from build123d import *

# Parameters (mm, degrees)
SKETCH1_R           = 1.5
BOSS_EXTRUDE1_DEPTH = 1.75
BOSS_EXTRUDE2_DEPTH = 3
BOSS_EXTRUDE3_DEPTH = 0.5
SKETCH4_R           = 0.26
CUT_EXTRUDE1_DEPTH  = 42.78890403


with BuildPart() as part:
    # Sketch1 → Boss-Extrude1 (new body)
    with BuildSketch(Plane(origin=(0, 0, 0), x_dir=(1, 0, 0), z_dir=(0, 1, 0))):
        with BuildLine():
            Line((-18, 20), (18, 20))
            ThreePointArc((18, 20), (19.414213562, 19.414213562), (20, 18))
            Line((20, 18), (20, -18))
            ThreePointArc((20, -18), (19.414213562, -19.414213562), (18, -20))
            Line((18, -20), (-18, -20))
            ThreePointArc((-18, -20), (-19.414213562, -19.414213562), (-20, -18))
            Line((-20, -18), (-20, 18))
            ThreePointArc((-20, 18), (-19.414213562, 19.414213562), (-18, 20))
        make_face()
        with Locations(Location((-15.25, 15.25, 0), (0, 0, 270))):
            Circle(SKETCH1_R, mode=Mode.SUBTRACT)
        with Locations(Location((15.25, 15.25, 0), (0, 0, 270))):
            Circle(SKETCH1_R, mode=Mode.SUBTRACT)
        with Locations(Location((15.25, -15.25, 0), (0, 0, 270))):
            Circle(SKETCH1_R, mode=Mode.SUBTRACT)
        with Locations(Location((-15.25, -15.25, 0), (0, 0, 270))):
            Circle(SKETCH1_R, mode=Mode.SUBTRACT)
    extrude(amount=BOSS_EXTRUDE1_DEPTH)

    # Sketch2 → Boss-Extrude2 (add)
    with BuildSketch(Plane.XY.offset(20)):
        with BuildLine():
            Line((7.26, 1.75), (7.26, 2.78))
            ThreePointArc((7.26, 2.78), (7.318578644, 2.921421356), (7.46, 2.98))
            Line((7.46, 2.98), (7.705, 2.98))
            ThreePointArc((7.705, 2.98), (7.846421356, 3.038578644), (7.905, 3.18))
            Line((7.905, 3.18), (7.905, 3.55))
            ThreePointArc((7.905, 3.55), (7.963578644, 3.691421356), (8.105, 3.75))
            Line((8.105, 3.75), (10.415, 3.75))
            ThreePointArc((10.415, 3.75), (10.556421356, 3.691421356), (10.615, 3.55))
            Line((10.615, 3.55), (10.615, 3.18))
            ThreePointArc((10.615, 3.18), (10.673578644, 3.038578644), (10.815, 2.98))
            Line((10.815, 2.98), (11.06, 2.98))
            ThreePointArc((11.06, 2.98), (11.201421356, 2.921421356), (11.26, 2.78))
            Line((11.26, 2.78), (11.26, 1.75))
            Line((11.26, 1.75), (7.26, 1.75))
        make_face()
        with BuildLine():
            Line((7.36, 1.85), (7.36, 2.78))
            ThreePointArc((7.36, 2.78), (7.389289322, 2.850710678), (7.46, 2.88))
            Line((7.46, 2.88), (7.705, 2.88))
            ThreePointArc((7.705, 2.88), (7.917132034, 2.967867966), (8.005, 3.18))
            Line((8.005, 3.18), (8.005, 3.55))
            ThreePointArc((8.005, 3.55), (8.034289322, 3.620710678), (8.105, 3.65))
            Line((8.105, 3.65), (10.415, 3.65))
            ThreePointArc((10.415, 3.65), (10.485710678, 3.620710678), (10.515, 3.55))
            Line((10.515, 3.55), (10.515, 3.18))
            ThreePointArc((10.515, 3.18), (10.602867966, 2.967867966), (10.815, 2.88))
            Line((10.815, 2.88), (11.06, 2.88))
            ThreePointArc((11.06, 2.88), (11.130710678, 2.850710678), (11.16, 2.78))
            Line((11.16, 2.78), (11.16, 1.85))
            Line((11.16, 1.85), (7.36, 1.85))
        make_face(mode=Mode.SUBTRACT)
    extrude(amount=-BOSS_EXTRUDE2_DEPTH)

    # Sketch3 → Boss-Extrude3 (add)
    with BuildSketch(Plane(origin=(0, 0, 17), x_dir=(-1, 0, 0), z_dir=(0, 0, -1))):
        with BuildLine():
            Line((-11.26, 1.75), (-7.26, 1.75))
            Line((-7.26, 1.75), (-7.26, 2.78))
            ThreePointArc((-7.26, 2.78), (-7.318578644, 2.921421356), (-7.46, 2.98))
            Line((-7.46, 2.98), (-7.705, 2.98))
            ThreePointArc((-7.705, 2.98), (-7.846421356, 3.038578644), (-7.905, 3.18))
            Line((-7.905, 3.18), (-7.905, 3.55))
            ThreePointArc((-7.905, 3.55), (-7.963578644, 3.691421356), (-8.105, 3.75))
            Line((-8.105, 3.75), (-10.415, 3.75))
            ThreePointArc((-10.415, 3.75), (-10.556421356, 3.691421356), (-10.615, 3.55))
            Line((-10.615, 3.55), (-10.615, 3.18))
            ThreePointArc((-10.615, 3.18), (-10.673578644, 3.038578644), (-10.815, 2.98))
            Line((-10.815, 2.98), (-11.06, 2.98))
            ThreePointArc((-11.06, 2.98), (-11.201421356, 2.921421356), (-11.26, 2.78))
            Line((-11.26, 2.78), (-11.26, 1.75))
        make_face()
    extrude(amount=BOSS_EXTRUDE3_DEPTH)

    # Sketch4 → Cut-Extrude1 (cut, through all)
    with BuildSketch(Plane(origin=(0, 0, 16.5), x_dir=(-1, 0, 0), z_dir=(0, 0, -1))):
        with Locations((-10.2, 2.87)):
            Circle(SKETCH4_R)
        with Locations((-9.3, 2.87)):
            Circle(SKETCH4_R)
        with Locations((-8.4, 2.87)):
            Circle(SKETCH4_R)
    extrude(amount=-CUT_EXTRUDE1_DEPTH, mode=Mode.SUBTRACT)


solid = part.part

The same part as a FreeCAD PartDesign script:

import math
import FreeCAD as App
import Part
import Sketcher
Q = App.Units.Quantity

doc = App.newDocument("Part")
body = doc.addObject("PartDesign::Body", "Body")

sketch1 = body.newObject("Sketcher::SketchObject", "Sketch")
sketch1.AttachmentSupport = (doc.getObject("XZ_Plane"), [""])
sketch1.MapMode = "FlatFace"
sketch1.addGeometry([
    Part.LineSegment(App.Vector(18, -20, 0), App.Vector(-18, -20, 0)),
    Part.ArcOfCircle(Part.Circle(App.Vector(-18, -18, 0), App.Vector(0, 0, 1), 2), math.radians(-180), math.radians(-90)),
    Part.LineSegment(App.Vector(-20, -18, 0), App.Vector(-20, 18, 0)),
    Part.ArcOfCircle(Part.Circle(App.Vector(-18, 18, 0), App.Vector(0, 0, 1), 2), math.radians(90), math.radians(180)),
    Part.LineSegment(App.Vector(-18, 20, 0), App.Vector(18, 20, 0)),
    Part.ArcOfCircle(Part.Circle(App.Vector(18, 18, 0), App.Vector(0, 0, 1), 2), math.radians(0), math.radians(90)),
    Part.LineSegment(App.Vector(20, 18, 0), App.Vector(20, -18, 0)),
    Part.ArcOfCircle(Part.Circle(App.Vector(18, -18, 0), App.Vector(0, 0, 1), 2), math.radians(-90), math.radians(0)),
    Part.Circle(App.Vector(15.2, 15.2, 0), App.Vector(0, 0, 1), 1.5),
    Part.Circle(App.Vector(-15.2, 15.2, 0), App.Vector(0, 0, 1), 1.5),
    Part.Circle(App.Vector(15.2, -15.2, 0), App.Vector(0, 0, 1), 1.5),
    Part.Circle(App.Vector(-15.2, -15.2, 0), App.Vector(0, 0, 1), 1.5),
], False)
sketch1.addConstraint([
    Sketcher.Constraint("Tangent", 0, 2, 1, 2),
    Sketcher.Constraint("Tangent", 1, 1, 2, 1),
    Sketcher.Constraint("Tangent", 2, 2, 3, 2),
    Sketcher.Constraint("Tangent", 3, 1, 4, 1),
    Sketcher.Constraint("Tangent", 4, 2, 5, 2),
    Sketcher.Constraint("Tangent", 5, 1, 6, 1),
    Sketcher.Constraint("Tangent", 6, 2, 7, 2),
    Sketcher.Constraint("Tangent", 7, 1, 0, 1),
    Sketcher.Constraint("Horizontal", 0),
    Sketcher.Constraint("Vertical", 2),
    Sketcher.Constraint("Horizontal", 4),
    Sketcher.Constraint("Vertical", 6),
    Sketcher.Constraint("Equal", 1, 3),
    Sketcher.Constraint("Equal", 3, 5),
    Sketcher.Constraint("Equal", 5, 7),
    Sketcher.Constraint("Equal", 8, 9),
    Sketcher.Constraint("Equal", 9, 10),
    Sketcher.Constraint("Equal", 10, 11),
    Sketcher.Constraint("Symmetric", 1, 3, 5, 3, -1, 1),
    Sketcher.Constraint("Symmetric", 9, 3, 10, 3, -1, 1),
    Sketcher.Constraint("Symmetric", 8, 3, 11, 3, -1, 1),
    Sketcher.Constraint("Symmetric", 8, 3, 9, 3, -2),
    Sketcher.Constraint("Equal", 4, 2),
    Sketcher.Constraint("Diameter", 8, Q("3 mm")),
    Sketcher.Constraint("Radius", 1, Q("2 mm")),
    Sketcher.Constraint("DistanceX", 0, 2, 0, 1, Q("36 mm")),
    Sketcher.Constraint("DistanceX", 9, 3, 8, 3, Q("30.5 mm")),
    Sketcher.Constraint("DistanceY", 10, 3, 8, 3, Q("30.5 mm")),
])
pad1 = body.newObject("PartDesign::Pad", "Pad")
pad1.Profile = sketch1
pad1.Length = 1.75
pad1.Reversed = True

sketch2 = body.newObject("Sketcher::SketchObject", "Sketch001")
sketch2.AttachmentSupport = (doc.getObject("XY_Plane"), [""])
sketch2.MapMode = "FlatFace"
sketch2.AttachmentOffset = App.Placement(App.Vector(0, 0, 20), App.Rotation())
sketch2.addGeometry([
    Part.LineSegment(App.Vector(7.26, 2.78, 0), App.Vector(7.26, 1.75, 0)),
    Part.LineSegment(App.Vector(7.26, 1.75, 0), App.Vector(11.26, 1.75, 0)),
    Part.LineSegment(App.Vector(11.26, 1.75, 0), App.Vector(11.26, 2.78, 0)),
    Part.ArcOfCircle(Part.Circle(App.Vector(11.06, 2.78, 0), App.Vector(0, 0, 1), 0.2), math.radians(0), math.radians(90)),
    Part.LineSegment(App.Vector(11.06, 2.98, 0), App.Vector(10.81, 2.98, 0)),
    Part.ArcOfCircle(Part.Circle(App.Vector(10.82, 3.18, 0), App.Vector(0, 0, 1), 0.2), math.radians(-180), math.radians(-90)),
    Part.LineSegment(App.Vector(10.62, 3.18, 0), App.Vector(10.62, 3.55, 0)),
    Part.ArcOfCircle(Part.Circle(App.Vector(10.41, 3.55, 0), App.Vector(0, 0, 1), 0.2), math.radians(0), math.radians(90)),
    Part.LineSegment(App.Vector(10.41, 3.75, 0), App.Vector(8.11, 3.75, 0)),
    Part.ArcOfCircle(Part.Circle(App.Vector(8.11, 3.55, 0), App.Vector(0, 0, 1), 0.2), math.radians(90), math.radians(180)),
    Part.LineSegment(App.Vector(7.91, 3.55, 0), App.Vector(7.91, 3.18, 0)),
    Part.ArcOfCircle(Part.Circle(App.Vector(7.7, 3.18, 0), App.Vector(0, 0, 1), 0.2), math.radians(-90), math.radians(0)),
    Part.LineSegment(App.Vector(7.71, 2.98, 0), App.Vector(7.46, 2.98, 0)),
    Part.ArcOfCircle(Part.Circle(App.Vector(7.46, 2.78, 0), App.Vector(0, 0, 1), 0.2), math.radians(90), math.radians(180)),
    Part.LineSegment(App.Vector(7.36, 1.85, 0), App.Vector(7.36, 2.78, 0)),
    Part.ArcOfCircle(Part.Circle(App.Vector(7.46, 2.78, 0), App.Vector(0, 0, 1), 0.1), math.radians(90), math.radians(180)),
    Part.LineSegment(App.Vector(7.46, 2.88, 0), App.Vector(7.71, 2.88, 0)),
    Part.ArcOfCircle(Part.Circle(App.Vector(7.7, 3.18, 0), App.Vector(0, 0, 1), 0.3), math.radians(-90), math.radians(0)),
    Part.LineSegment(App.Vector(8.01, 3.18, 0), App.Vector(8.01, 3.55, 0)),
    Part.ArcOfCircle(Part.Circle(App.Vector(8.11, 3.55, 0), App.Vector(0, 0, 1), 0.1), math.radians(90), math.radians(180)),
    Part.LineSegment(App.Vector(8.11, 3.65, 0), App.Vector(10.41, 3.65, 0)),
    Part.ArcOfCircle(Part.Circle(App.Vector(10.41, 3.55, 0), App.Vector(0, 0, 1), 0.1), math.radians(0), math.radians(90)),
    Part.LineSegment(App.Vector(10.52, 3.55, 0), App.Vector(10.52, 3.18, 0)),
    Part.ArcOfCircle(Part.Circle(App.Vector(10.82, 3.18, 0), App.Vector(0, 0, 1), 0.3), math.radians(-180), math.radians(-90)),
    Part.LineSegment(App.Vector(10.81, 2.88, 0), App.Vector(11.06, 2.88, 0)),
    Part.ArcOfCircle(Part.Circle(App.Vector(11.06, 2.78, 0), App.Vector(0, 0, 1), 0.1), math.radians(0), math.radians(90)),
    Part.LineSegment(App.Vector(11.16, 2.78, 0), App.Vector(11.16, 1.85, 0)),
    Part.LineSegment(App.Vector(11.16, 1.85, 0), App.Vector(7.36, 1.85, 0)),
], False)
sketch2.addConstraint([
    Sketcher.Constraint("Coincident", 0, 2, 1, 1),
    Sketcher.Constraint("Coincident", 1, 2, 2, 1),
    Sketcher.Constraint("Tangent", 2, 2, 3, 1),
    Sketcher.Constraint("Tangent", 3, 2, 4, 1),
    Sketcher.Constraint("Tangent", 4, 2, 5, 2),
    Sketcher.Constraint("Tangent", 5, 1, 6, 1),
    Sketcher.Constraint("Tangent", 6, 2, 7, 1),
    Sketcher.Constraint("Tangent", 7, 2, 8, 1),
    Sketcher.Constraint("Tangent", 8, 2, 9, 1),
    Sketcher.Constraint("Tangent", 9, 2, 10, 1),
    Sketcher.Constraint("Tangent", 10, 2, 11, 2),
    Sketcher.Constraint("Tangent", 11, 1, 12, 1),
    Sketcher.Constraint("Tangent", 12, 2, 13, 1),
    Sketcher.Constraint("Tangent", 13, 2, 0, 1),
    Sketcher.Constraint("Tangent", 14, 2, 15, 2),
    Sketcher.Constraint("Tangent", 15, 1, 16, 1),
    Sketcher.Constraint("Tangent", 16, 2, 17, 1),
    Sketcher.Constraint("Tangent", 17, 2, 18, 1),
    Sketcher.Constraint("Tangent", 18, 2, 19, 2),
    Sketcher.Constraint("Tangent", 19, 1, 20, 1),
    Sketcher.Constraint("Tangent", 20, 2, 21, 2),
    Sketcher.Constraint("Tangent", 21, 1, 22, 1),
    Sketcher.Constraint("Tangent", 22, 2, 23, 1),
    Sketcher.Constraint("Tangent", 23, 2, 24, 1),
    Sketcher.Constraint("Tangent", 24, 2, 25, 2),
    Sketcher.Constraint("Tangent", 25, 1, 26, 1),
    Sketcher.Constraint("Coincident", 26, 2, 27, 1),
    Sketcher.Constraint("Coincident", 27, 2, 14, 1),
    Sketcher.Constraint("Vertical", 0),
    Sketcher.Constraint("Horizontal", 1),
    Sketcher.Constraint("Vertical", 2),
    Sketcher.Constraint("Horizontal", 4),
    Sketcher.Constraint("Vertical", 6),
    Sketcher.Constraint("Horizontal", 8),
    Sketcher.Constraint("Vertical", 10),
    Sketcher.Constraint("Horizontal", 12),
    Sketcher.Constraint("Vertical", 14),
    Sketcher.Constraint("Horizontal", 16),
    Sketcher.Constraint("Vertical", 18),
    Sketcher.Constraint("Horizontal", 20),
    Sketcher.Constraint("Vertical", 22),
    Sketcher.Constraint("Horizontal", 24),
    Sketcher.Constraint("Vertical", 26),
    Sketcher.Constraint("Horizontal", 27),
    Sketcher.Constraint("Coincident", 15, 3, 13, 3),
    Sketcher.Constraint("Coincident", 17, 3, 11, 3),
    Sketcher.Constraint("Coincident", 19, 3, 9, 3),
    Sketcher.Constraint("Coincident", 21, 3, 7, 3),
    Sketcher.Constraint("Coincident", 23, 3, 5, 3),
    Sketcher.Constraint("Coincident", 25, 3, 3, 3),
    Sketcher.Constraint("Equal", 3, 5),
    Sketcher.Constraint("Equal", 5, 7),
    Sketcher.Constraint("Equal", 7, 9),
    Sketcher.Constraint("Equal", 9, 11),
    Sketcher.Constraint("Equal", 11, 13),
    Sketcher.Constraint("Horizontal", 5, 3, 11, 3),
    Sketcher.Constraint("Equal", 4, 12),
    Sketcher.Constraint("Radius", 3, Q("0.2 mm")),
    Sketcher.Constraint("Radius", 15, Q("0.1 mm")),
    Sketcher.Constraint("DistanceX", 1, 1, 1, 2, Q("4 mm")),
    Sketcher.Constraint("DistanceX", 8, 2, 8, 1, Q("2.31 mm")),
    Sketcher.Constraint("DistanceY", 0, 2, 0, 1, Q("1.03 mm")),
    Sketcher.Constraint("DistanceY", 6, 1, 6, 2, Q("0.37 mm")),
    Sketcher.Constraint("DistanceY", 14, 1, 14, 2, Q("0.93 mm")),
    Sketcher.Constraint("DistanceX", -1, 1, 3, 3, Q("11.06 mm")),
    Sketcher.Constraint("DistanceY", -1, 1, 3, 3, Q("2.78 mm")),
])
pad2 = body.newObject("PartDesign::Pad", "Pad001")
pad2.Profile = sketch2
pad2.Length = 3
pad2.Reversed = True

sketch3 = body.newObject("Sketcher::SketchObject", "Sketch002")
sketch3.AttachmentSupport = (doc.getObject("XY_Plane"), [""])
sketch3.MapMode = "FlatFace"
sketch3.AttachmentOffset = App.Placement(App.Vector(0, 0, 17), App.Rotation())
sketch3.addGeometry([
    Part.LineSegment(App.Vector(11.26, 1.75, 0), App.Vector(7.26, 1.75, 0)),
    Part.LineSegment(App.Vector(7.26, 1.75, 0), App.Vector(7.26, 2.78, 0)),
    Part.ArcOfCircle(Part.Circle(App.Vector(7.46, 2.78, 0), App.Vector(0, 0, 1), 0.2), math.radians(90), math.radians(180)),
    Part.LineSegment(App.Vector(7.46, 2.98, 0), App.Vector(7.71, 2.98, 0)),
    Part.ArcOfCircle(Part.Circle(App.Vector(7.7, 3.18, 0), App.Vector(0, 0, 1), 0.2), math.radians(-90), math.radians(0)),
    Part.LineSegment(App.Vector(7.91, 3.18, 0), App.Vector(7.91, 3.55, 0)),
    Part.ArcOfCircle(Part.Circle(App.Vector(8.11, 3.55, 0), App.Vector(0, 0, 1), 0.2), math.radians(90), math.radians(180)),
    Part.LineSegment(App.Vector(8.11, 3.75, 0), App.Vector(10.41, 3.75, 0)),
    Part.ArcOfCircle(Part.Circle(App.Vector(10.41, 3.55, 0), App.Vector(0, 0, 1), 0.2), math.radians(0), math.radians(90)),
    Part.LineSegment(App.Vector(10.62, 3.55, 0), App.Vector(10.62, 3.18, 0)),
    Part.ArcOfCircle(Part.Circle(App.Vector(10.82, 3.18, 0), App.Vector(0, 0, 1), 0.2), math.radians(-180), math.radians(-90)),
    Part.LineSegment(App.Vector(10.81, 2.98, 0), App.Vector(11.06, 2.98, 0)),
    Part.ArcOfCircle(Part.Circle(App.Vector(11.06, 2.78, 0), App.Vector(0, 0, 1), 0.2), math.radians(0), math.radians(90)),
    Part.LineSegment(App.Vector(11.26, 2.78, 0), App.Vector(11.26, 1.75, 0)),
], False)
sketch3.addConstraint([
    Sketcher.Constraint("Coincident", 0, 2, 1, 1),
    Sketcher.Constraint("Tangent", 1, 2, 2, 2),
    Sketcher.Constraint("Tangent", 2, 1, 3, 1),
    Sketcher.Constraint("Tangent", 3, 2, 4, 1),
    Sketcher.Constraint("Tangent", 4, 2, 5, 1),
    Sketcher.Constraint("Tangent", 5, 2, 6, 2),
    Sketcher.Constraint("Tangent", 6, 1, 7, 1),
    Sketcher.Constraint("Tangent", 7, 2, 8, 2),
    Sketcher.Constraint("Tangent", 8, 1, 9, 1),
    Sketcher.Constraint("Tangent", 9, 2, 10, 1),
    Sketcher.Constraint("Tangent", 10, 2, 11, 1),
    Sketcher.Constraint("Tangent", 11, 2, 12, 2),
    Sketcher.Constraint("Tangent", 12, 1, 13, 1),
    Sketcher.Constraint("Coincident", 13, 2, 0, 1),
    Sketcher.Constraint("Horizontal", 0),
    Sketcher.Constraint("Vertical", 1),
    Sketcher.Constraint("Horizontal", 3),
    Sketcher.Constraint("Vertical", 5),
    Sketcher.Constraint("Horizontal", 7),
    Sketcher.Constraint("Vertical", 9),
    Sketcher.Constraint("Horizontal", 11),
    Sketcher.Constraint("Vertical", 13),
    Sketcher.Constraint("Equal", 2, 4),
    Sketcher.Constraint("Equal", 4, 6),
    Sketcher.Constraint("Equal", 6, 8),
    Sketcher.Constraint("Equal", 8, 10),
    Sketcher.Constraint("Equal", 10, 12),
    Sketcher.Constraint("Horizontal", 4, 3, 10, 3),
    Sketcher.Constraint("Equal", 3, 11),
    Sketcher.Constraint("Radius", 2, Q("0.2 mm")),
    Sketcher.Constraint("DistanceX", 0, 2, 0, 1, Q("4 mm")),
    Sketcher.Constraint("DistanceX", 7, 1, 7, 2, Q("2.31 mm")),
    Sketcher.Constraint("DistanceY", 1, 1, 1, 2, Q("1.03 mm")),
    Sketcher.Constraint("DistanceY", 5, 1, 5, 2, Q("0.37 mm")),
    Sketcher.Constraint("DistanceX", -1, 1, 2, 3, Q("7.46 mm")),
    Sketcher.Constraint("DistanceY", -1, 1, 2, 3, Q("2.78 mm")),
])
pad3 = body.newObject("PartDesign::Pad", "Pad002")
pad3.Profile = sketch3
pad3.Length = 0.5
pad3.Reversed = True

sketch4 = body.newObject("Sketcher::SketchObject", "Sketch003")
sketch4.AttachmentSupport = (doc.getObject("XY_Plane"), [""])
sketch4.MapMode = "FlatFace"
sketch4.AttachmentOffset = App.Placement(App.Vector(0, 0, 16.5), App.Rotation())
sketch4.addGeometry([
    Part.Circle(App.Vector(10.2, 2.87, 0), App.Vector(0, 0, 1), 0.26),
    Part.Circle(App.Vector(9.3, 2.87, 0), App.Vector(0, 0, 1), 0.26),
    Part.Circle(App.Vector(8.4, 2.87, 0), App.Vector(0, 0, 1), 0.26),
], False)
sketch4.addConstraint([
    Sketcher.Constraint("Equal", 0, 1),
    Sketcher.Constraint("Equal", 1, 2),
    Sketcher.Constraint("Horizontal", 0, 3, 1, 3),
    Sketcher.Constraint("Horizontal", 1, 3, 2, 3),
    Sketcher.Constraint("Diameter", 0, Q("0.52 mm")),
    Sketcher.Constraint("DistanceX", -1, 1, 0, 3, Q("10.2 mm")),
    Sketcher.Constraint("DistanceX", -1, 1, 1, 3, Q("9.3 mm")),
    Sketcher.Constraint("DistanceX", -1, 1, 2, 3, Q("8.4 mm")),
    Sketcher.Constraint("DistanceY", -1, 1, 0, 3, Q("2.87 mm")),
])
pocket1 = body.newObject("PartDesign::Pocket", "Pocket")
pocket1.Profile = sketch4
pocket1.Type = "ThroughAll"
pocket1.Reversed = True

doc.recompute()
